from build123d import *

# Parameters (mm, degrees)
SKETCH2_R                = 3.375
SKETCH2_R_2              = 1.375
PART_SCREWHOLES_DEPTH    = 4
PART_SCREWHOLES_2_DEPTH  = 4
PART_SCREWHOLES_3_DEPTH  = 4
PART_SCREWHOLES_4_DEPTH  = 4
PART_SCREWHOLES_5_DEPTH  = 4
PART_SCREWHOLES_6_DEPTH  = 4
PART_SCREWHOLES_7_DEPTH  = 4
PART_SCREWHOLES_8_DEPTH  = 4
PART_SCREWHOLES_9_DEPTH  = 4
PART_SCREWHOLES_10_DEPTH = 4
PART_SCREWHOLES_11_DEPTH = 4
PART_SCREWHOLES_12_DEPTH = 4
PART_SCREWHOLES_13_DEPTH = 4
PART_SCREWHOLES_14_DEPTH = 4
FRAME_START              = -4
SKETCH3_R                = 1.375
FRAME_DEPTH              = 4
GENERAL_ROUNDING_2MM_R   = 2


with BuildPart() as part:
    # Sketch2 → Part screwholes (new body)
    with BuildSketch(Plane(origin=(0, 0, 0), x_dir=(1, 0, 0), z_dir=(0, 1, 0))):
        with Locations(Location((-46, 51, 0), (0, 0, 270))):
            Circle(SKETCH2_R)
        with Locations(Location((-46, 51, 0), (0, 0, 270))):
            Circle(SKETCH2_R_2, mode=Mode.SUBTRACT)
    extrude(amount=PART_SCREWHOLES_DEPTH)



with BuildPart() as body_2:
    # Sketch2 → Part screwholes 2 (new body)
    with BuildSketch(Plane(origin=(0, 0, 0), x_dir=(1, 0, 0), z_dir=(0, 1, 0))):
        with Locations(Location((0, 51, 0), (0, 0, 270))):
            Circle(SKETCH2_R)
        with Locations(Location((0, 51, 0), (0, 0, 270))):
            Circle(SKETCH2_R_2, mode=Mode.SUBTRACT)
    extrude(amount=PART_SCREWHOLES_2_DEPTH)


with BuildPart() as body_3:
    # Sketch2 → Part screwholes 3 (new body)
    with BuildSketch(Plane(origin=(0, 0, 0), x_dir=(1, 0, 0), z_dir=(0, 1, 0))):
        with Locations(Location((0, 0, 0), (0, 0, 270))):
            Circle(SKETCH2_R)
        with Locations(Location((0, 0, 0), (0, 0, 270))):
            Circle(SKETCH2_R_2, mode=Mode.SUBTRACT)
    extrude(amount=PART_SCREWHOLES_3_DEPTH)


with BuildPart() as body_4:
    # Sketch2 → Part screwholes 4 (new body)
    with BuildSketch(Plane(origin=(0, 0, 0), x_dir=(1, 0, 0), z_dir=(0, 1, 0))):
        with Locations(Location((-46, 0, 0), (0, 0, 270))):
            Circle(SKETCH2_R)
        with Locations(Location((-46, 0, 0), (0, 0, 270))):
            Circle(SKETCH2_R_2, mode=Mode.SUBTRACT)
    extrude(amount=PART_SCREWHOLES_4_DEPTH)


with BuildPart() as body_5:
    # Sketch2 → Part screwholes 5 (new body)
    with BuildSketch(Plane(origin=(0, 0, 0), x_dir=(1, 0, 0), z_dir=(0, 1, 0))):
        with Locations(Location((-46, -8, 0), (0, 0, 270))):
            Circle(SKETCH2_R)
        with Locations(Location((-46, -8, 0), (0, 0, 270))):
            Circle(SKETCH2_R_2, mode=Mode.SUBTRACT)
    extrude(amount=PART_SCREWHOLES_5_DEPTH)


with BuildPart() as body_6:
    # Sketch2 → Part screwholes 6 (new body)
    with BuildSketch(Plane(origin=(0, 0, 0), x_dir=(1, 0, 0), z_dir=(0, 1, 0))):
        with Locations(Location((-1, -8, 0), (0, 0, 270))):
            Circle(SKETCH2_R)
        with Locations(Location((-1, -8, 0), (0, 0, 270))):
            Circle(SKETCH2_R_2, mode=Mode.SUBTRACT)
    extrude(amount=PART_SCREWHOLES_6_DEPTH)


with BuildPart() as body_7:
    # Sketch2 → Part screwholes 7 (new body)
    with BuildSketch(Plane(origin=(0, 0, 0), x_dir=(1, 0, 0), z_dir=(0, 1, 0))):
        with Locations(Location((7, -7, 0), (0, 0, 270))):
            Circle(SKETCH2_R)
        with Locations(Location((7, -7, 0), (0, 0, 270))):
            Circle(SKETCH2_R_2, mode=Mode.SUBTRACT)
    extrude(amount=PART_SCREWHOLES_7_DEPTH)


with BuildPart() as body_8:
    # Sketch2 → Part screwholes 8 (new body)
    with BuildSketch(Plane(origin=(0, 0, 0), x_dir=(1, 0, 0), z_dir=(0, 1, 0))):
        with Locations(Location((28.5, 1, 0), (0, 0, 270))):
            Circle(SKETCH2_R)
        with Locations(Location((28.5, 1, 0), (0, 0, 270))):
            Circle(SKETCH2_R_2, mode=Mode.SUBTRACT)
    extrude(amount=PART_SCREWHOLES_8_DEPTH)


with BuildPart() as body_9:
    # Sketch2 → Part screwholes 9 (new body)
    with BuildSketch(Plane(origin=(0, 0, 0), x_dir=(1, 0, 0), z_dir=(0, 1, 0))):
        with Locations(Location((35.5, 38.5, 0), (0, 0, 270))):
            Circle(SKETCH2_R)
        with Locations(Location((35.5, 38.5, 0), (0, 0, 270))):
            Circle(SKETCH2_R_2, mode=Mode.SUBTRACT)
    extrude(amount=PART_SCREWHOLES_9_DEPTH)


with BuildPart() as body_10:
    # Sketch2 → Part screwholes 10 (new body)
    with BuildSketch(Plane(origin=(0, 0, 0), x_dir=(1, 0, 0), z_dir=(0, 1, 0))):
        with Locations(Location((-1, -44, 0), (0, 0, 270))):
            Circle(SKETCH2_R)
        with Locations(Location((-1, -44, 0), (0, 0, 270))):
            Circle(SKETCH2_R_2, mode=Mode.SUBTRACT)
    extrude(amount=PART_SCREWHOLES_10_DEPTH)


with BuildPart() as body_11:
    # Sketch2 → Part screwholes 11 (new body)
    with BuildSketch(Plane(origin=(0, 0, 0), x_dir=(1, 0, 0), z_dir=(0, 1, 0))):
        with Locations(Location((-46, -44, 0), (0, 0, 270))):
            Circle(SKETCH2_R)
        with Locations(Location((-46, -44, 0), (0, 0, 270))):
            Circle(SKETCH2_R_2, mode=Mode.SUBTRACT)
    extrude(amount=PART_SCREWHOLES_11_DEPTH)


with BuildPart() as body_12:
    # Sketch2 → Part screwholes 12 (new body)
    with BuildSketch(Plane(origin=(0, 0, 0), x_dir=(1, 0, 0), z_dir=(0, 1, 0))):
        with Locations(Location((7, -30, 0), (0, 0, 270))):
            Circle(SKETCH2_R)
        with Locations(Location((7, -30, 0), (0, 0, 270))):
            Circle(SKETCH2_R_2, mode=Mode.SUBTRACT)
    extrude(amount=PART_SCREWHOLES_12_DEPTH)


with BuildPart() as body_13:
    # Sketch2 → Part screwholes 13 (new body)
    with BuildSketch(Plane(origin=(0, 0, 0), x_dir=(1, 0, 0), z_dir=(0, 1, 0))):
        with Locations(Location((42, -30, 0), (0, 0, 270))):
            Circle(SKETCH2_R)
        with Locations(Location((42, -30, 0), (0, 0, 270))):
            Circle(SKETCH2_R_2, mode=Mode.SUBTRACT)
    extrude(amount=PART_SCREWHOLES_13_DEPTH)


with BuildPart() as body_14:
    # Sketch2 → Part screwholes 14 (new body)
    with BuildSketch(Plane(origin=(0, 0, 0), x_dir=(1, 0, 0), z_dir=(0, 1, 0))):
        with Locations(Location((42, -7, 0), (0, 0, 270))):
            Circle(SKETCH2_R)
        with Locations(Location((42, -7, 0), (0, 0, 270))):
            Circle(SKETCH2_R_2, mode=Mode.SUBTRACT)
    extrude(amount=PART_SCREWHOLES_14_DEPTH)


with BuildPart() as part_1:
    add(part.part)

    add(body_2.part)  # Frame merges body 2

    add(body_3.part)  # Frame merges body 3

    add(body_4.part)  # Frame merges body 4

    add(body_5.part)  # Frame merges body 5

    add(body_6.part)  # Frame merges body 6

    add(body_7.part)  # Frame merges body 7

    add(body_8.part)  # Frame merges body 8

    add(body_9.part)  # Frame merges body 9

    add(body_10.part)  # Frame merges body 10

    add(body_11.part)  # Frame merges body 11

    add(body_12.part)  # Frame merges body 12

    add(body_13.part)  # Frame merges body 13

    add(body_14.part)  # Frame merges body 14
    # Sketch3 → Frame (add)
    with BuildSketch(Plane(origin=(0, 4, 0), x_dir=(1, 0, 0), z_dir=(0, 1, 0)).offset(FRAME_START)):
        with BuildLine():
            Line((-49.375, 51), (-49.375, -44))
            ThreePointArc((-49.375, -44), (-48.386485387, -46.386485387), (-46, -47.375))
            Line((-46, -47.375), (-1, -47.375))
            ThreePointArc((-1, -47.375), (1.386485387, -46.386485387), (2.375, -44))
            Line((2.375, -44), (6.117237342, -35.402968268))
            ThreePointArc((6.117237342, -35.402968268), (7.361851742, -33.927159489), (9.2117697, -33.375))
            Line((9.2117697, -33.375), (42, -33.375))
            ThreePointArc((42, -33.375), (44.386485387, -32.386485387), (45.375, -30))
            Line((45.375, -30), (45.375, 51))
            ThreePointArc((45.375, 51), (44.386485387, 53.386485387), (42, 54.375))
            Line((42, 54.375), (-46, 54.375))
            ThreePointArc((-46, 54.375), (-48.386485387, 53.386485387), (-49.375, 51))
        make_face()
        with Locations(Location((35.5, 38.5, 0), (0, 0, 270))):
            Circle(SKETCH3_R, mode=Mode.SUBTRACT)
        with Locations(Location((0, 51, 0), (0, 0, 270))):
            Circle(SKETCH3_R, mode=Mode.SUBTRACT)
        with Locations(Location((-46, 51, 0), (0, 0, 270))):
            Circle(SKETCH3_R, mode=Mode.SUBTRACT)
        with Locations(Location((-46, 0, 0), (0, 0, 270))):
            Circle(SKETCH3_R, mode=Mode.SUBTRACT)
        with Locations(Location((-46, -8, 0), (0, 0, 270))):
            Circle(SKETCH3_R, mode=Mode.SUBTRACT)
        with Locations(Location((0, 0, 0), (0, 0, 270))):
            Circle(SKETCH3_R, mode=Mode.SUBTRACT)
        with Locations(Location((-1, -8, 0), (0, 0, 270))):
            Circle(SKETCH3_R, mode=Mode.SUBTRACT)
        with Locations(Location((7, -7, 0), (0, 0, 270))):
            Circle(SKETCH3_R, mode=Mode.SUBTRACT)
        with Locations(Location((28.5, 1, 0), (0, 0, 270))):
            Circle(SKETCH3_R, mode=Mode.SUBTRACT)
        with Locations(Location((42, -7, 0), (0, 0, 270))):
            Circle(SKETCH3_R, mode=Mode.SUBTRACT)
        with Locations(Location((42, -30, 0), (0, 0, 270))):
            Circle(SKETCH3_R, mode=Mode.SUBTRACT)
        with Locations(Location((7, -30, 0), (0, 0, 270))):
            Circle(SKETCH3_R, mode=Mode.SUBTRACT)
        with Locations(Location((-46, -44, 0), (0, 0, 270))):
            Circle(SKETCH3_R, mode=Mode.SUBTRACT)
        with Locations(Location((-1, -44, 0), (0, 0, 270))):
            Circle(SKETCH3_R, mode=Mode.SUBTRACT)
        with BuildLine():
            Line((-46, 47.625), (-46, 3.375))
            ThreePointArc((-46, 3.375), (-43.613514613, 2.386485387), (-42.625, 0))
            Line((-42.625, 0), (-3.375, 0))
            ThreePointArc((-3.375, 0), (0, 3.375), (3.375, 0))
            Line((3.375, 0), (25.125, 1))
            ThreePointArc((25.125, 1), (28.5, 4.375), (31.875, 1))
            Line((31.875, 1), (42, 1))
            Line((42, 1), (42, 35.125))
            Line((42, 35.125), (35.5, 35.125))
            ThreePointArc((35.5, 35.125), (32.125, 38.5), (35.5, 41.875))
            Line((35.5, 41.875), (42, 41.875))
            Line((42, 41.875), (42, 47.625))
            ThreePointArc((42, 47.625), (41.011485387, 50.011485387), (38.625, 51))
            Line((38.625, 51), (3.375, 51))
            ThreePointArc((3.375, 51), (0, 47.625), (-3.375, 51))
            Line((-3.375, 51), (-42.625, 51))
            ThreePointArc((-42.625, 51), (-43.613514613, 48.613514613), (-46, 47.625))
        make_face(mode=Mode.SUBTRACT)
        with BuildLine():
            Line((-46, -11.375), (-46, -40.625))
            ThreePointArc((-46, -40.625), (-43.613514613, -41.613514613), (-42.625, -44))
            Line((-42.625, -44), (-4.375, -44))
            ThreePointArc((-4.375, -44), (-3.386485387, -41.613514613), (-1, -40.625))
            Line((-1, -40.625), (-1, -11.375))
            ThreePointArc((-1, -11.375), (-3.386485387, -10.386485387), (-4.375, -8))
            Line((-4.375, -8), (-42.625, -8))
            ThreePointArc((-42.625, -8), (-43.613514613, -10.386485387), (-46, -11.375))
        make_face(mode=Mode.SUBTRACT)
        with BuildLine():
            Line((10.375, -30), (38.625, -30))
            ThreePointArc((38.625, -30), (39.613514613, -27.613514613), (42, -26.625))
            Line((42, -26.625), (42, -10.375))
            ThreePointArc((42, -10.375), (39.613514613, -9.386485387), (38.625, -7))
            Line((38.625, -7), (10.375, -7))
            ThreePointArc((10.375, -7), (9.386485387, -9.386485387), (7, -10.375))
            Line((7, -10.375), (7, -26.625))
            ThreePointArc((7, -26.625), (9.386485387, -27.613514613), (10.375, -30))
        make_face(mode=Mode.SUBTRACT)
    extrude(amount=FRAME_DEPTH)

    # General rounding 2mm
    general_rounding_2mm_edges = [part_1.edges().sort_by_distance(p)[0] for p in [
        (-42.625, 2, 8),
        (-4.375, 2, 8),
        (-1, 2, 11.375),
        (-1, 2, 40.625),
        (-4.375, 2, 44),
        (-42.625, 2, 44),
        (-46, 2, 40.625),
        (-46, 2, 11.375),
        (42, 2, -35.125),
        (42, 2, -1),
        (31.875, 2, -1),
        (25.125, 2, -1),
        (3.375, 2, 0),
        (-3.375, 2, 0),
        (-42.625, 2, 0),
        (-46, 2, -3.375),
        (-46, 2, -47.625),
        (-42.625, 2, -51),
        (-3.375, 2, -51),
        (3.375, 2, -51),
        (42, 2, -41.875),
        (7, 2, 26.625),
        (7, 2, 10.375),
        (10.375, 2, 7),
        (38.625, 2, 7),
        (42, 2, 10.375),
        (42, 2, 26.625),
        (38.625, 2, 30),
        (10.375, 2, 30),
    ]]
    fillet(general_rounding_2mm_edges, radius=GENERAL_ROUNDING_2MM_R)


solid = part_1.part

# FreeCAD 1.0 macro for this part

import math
import FreeCAD as App
import Part
import Sketcher


def edges_at(feature, points):
    """Names of the edges that pass closest to the given points."""
    edges = feature.Shape.Edges
    near = lambda p: min(range(len(edges)), key=lambda i: edges[i].distToShape(Part.Vertex(*p))[0])
    return sorted({f"Edge{near(p) + 1}" for p in points})

doc = App.newDocument("Part")
body = doc.addObject("PartDesign::Body", "Body")

# Sketch on XZ plane
sketch1 = doc.addObject("Sketcher::SketchObject", "Sketch")
body.addObject(sketch1)
sketch1.AttachmentSupport = (doc.XZ_Plane, [""])
sketch1.MapMode = "FlatFace"
sketch1.addGeometry([
    Part.Circle(App.Vector(-46, -51, 0), App.Vector(0, 0, 1), 3.375),
    Part.Circle(App.Vector(-46, -51, 0), App.Vector(0, 0, 1), 1.375),
], False)
sketch1.addConstraint([
    Sketcher.Constraint("Coincident", 1, 3, 0, 3),
    Sketcher.Constraint("Diameter", 0, 6.75),
    Sketcher.Constraint("Diameter", 1, 2.75),
    Sketcher.Constraint("DistanceX", 0, 3, -1, 1, 46.0),
    Sketcher.Constraint("DistanceY", 0, 3, -1, 1, 51.0),
])
pad1 = doc.addObject("PartDesign::Pad", "Pad")
body.addObject(pad1)
pad1.Profile = sketch1
pad1.Length = 4
pad1.Reversed = True
body2 = doc.addObject("PartDesign::Body", "Body001")

# Sketch on XZ plane
sketch2 = doc.addObject("Sketcher::SketchObject", "Sketch001")
body2.addObject(sketch2)
sketch2.AttachmentSupport = (doc.getObject("XZ_Plane001"), [""])
sketch2.MapMode = "FlatFace"
sketch2.addGeometry([
    Part.Circle(App.Vector(0, -51, 0), App.Vector(0, 0, 1), 3.375),
    Part.Circle(App.Vector(0, -51, 0), App.Vector(0, 0, 1), 1.375),
], False)
sketch2.addConstraint([
    Sketcher.Constraint("Coincident", 1, 3, 0, 3),
    Sketcher.Constraint("PointOnObject", 0, 3, -2),
    Sketcher.Constraint("Diameter", 0, 6.75),
    Sketcher.Constraint("Diameter", 1, 2.75),
    Sketcher.Constraint("DistanceY", 0, 3, -1, 1, 51.0),
])
pad2 = doc.addObject("PartDesign::Pad", "Pad001")
body2.addObject(pad2)
pad2.Profile = sketch2
pad2.Length = 4
pad2.Reversed = True
body3 = doc.addObject("PartDesign::Body", "Body002")

# Sketch on XZ plane
sketch3 = doc.addObject("Sketcher::SketchObject", "Sketch002")
body3.addObject(sketch3)
sketch3.AttachmentSupport = (doc.getObject("XZ_Plane002"), [""])
sketch3.MapMode = "FlatFace"
sketch3.addGeometry([
    Part.Circle(App.Vector(0, 0, 0), App.Vector(0, 0, 1), 3.375),
    Part.Circle(App.Vector(0, 0, 0), App.Vector(0, 0, 1), 1.375),
], False)
sketch3.addConstraint([
    Sketcher.Constraint("Coincident", 0, 3, -1, 1),
    Sketcher.Constraint("Coincident", 1, 3, -1, 1),
    Sketcher.Constraint("Diameter", 0, 6.75),
    Sketcher.Constraint("Diameter", 1, 2.75),
])
pad3 = doc.addObject("PartDesign::Pad", "Pad002")
body3.addObject(pad3)
pad3.Profile = sketch3
pad3.Length = 4
pad3.Reversed = True
body4 = doc.addObject("PartDesign::Body", "Body003")

# Sketch on XZ plane
sketch4 = doc.addObject("Sketcher::SketchObject", "Sketch003")
body4.addObject(sketch4)
sketch4.AttachmentSupport = (doc.getObject("XZ_Plane003"), [""])
sketch4.MapMode = "FlatFace"
sketch4.addGeometry([
    Part.Circle(App.Vector(-46, 0, 0), App.Vector(0, 0, 1), 3.375),
    Part.Circle(App.Vector(-46, 0, 0), App.Vector(0, 0, 1), 1.375),
], False)
sketch4.addConstraint([
    Sketcher.Constraint("Coincident", 1, 3, 0, 3),
    Sketcher.Constraint("PointOnObject", 0, 3, -1),
    Sketcher.Constraint("Diameter", 0, 6.75),
    Sketcher.Constraint("Diameter", 1, 2.75),
    Sketcher.Constraint("DistanceX", 0, 3, -1, 1, 46.0),
])
pad4 = doc.addObject("PartDesign::Pad", "Pad003")
body4.addObject(pad4)
pad4.Profile = sketch4
pad4.Length = 4
pad4.Reversed = True
body5 = doc.addObject("PartDesign::Body", "Body004")

# Sketch on XZ plane
sketch5 = doc.addObject("Sketcher::SketchObject", "Sketch004")
body5.addObject(sketch5)
sketch5.AttachmentSupport = (doc.getObject("XZ_Plane004"), [""])
sketch5.MapMode = "FlatFace"
sketch5.addGeometry([
    Part.Circle(App.Vector(-46, 8, 0), App.Vector(0, 0, 1), 3.375),
    Part.Circle(App.Vector(-46, 8, 0), App.Vector(0, 0, 1), 1.375),
], False)
sketch5.addConstraint([
    Sketcher.Constraint("Coincident", 1, 3, 0, 3),
    Sketcher.Constraint("Diameter", 0, 6.75),
    Sketcher.Constraint("Diameter", 1, 2.75),
    Sketcher.Constraint("DistanceX", 0, 3, -1, 1, 46.0),
    Sketcher.Constraint("DistanceY", -1, 1, 0, 3, 8.0),
])
pad5 = doc.addObject("PartDesign::Pad", "Pad004")
body5.addObject(pad5)
pad5.Profile = sketch5
pad5.Length = 4
pad5.Reversed = True
body6 = doc.addObject("PartDesign::Body", "Body005")

# Sketch on XZ plane
sketch6 = doc.addObject("Sketcher::SketchObject", "Sketch005")
body6.addObject(sketch6)
sketch6.AttachmentSupport = (doc.getObject("XZ_Plane005"), [""])
sketch6.MapMode = "FlatFace"
sketch6.addGeometry([
    Part.Circle(App.Vector(-1, 8, 0), App.Vector(0, 0, 1), 3.375),
    Part.Circle(App.Vector(-1, 8, 0), App.Vector(0, 0, 1), 1.375),
], False)
sketch6.addConstraint([
    Sketcher.Constraint("Coincident", 1, 3, 0, 3),
    Sketcher.Constraint("Diameter", 0, 6.75),
    Sketcher.Constraint("Diameter", 1, 2.75),
    Sketcher.Constraint("DistanceX", 0, 3, -1, 1, 1.0),
    Sketcher.Constraint("DistanceY", -1, 1, 0, 3, 8.0),
])
pad6 = doc.addObject("PartDesign::Pad", "Pad005")
body6.addObject(pad6)
pad6.Profile = sketch6
pad6.Length = 4
pad6.Reversed = True
body7 = doc.addObject("PartDesign::Body", "Body006")

# Sketch on XZ plane
sketch7 = doc.addObject("Sketcher::SketchObject", "Sketch006")
body7.addObject(sketch7)
sketch7.AttachmentSupport = (doc.getObject("XZ_Plane006"), [""])
sketch7.MapMode = "FlatFace"
sketch7.addGeometry([
    Part.Circle(App.Vector(7, 7, 0), App.Vector(0, 0, 1), 3.375),
    Part.Circle(App.Vector(7, 7, 0), App.Vector(0, 0, 1), 1.375),
], False)
sketch7.addConstraint([
    Sketcher.Constraint("Coincident", 1, 3, 0, 3),
    Sketcher.Constraint("Diameter", 0, 6.75),
    Sketcher.Constraint("Diameter", 1, 2.75),
    Sketcher.Constraint("DistanceX", -1, 1, 0, 3, 7.0),
    Sketcher.Constraint("DistanceY", -1, 1, 0, 3, 7.0),
])
pad7 = doc.addObject("PartDesign::Pad", "Pad006")
body7.addObject(pad7)
pad7.Profile = sketch7
pad7.Length = 4
pad7.Reversed = True
body8 = doc.addObject("PartDesign::Body", "Body007")

# Sketch on XZ plane
sketch8 = doc.addObject("Sketcher::SketchObject", "Sketch007")
body8.addObject(sketch8)
sketch8.AttachmentSupport = (doc.getObject("XZ_Plane007"), [""])
sketch8.MapMode = "FlatFace"
sketch8.addGeometry([
    Part.Circle(App.Vector(28.5, -1, 0), App.Vector(0, 0, 1), 3.375),
    Part.Circle(App.Vector(28.5, -1, 0), App.Vector(0, 0, 1), 1.375),
], False)
sketch8.addConstraint([
    Sketcher.Constraint("Coincident", 1, 3, 0, 3),
    Sketcher.Constraint("Diameter", 0, 6.75),
    Sketcher.Constraint("Diameter", 1, 2.75),
    Sketcher.Constraint("DistanceY", 0, 3, -1, 1, 1.0),
    Sketcher.Constraint("DistanceX", -1, 1, 0, 3, 28.5),
])
pad8 = doc.addObject("PartDesign::Pad", "Pad007")
body8.addObject(pad8)
pad8.Profile = sketch8
pad8.Length = 4
pad8.Reversed = True
body9 = doc.addObject("PartDesign::Body", "Body008")

# Sketch on XZ plane
sketch9 = doc.addObject("Sketcher::SketchObject", "Sketch008")
body9.addObject(sketch9)
sketch9.AttachmentSupport = (doc.getObject("XZ_Plane008"), [""])
sketch9.MapMode = "FlatFace"
sketch9.addGeometry([
    Part.Circle(App.Vector(35.5, -38.5, 0), App.Vector(0, 0, 1), 3.375),
    Part.Circle(App.Vector(35.5, -38.5, 0), App.Vector(0, 0, 1), 1.375),
], False)
sketch9.addConstraint([
    Sketcher.Constraint("Coincident", 1, 3, 0, 3),
    Sketcher.Constraint("Diameter", 0, 6.75),
    Sketcher.Constraint("Diameter", 1, 2.75),
    Sketcher.Constraint("DistanceX", -1, 1, 0, 3, 35.5),
    Sketcher.Constraint("DistanceY", 0, 3, -1, 1, 38.5),
])
pad9 = doc.addObject("PartDesign::Pad", "Pad008")
body9.addObject(pad9)
pad9.Profile = sketch9
pad9.Length = 4
pad9.Reversed = True
body10 = doc.addObject("PartDesign::Body", "Body009")

# Sketch on XZ plane
sketch10 = doc.addObject("Sketcher::SketchObject", "Sketch009")
body10.addObject(sketch10)
sketch10.AttachmentSupport = (doc.getObject("XZ_Plane009"), [""])
sketch10.MapMode = "FlatFace"
sketch10.addGeometry([
    Part.Circle(App.Vector(-1, 44, 0), App.Vector(0, 0, 1), 3.375),
    Part.Circle(App.Vector(-1, 44, 0), App.Vector(0, 0, 1), 1.375),
], False)
sketch10.addConstraint([
    Sketcher.Constraint("Coincident", 1, 3, 0, 3),
    Sketcher.Constraint("Diameter", 0, 6.75),
    Sketcher.Constraint("Diameter", 1, 2.75),
    Sketcher.Constraint("DistanceX", 0, 3, -1, 1, 1.0),
    Sketcher.Constraint("DistanceY", -1, 1, 0, 3, 44.0),
])
pad10 = doc.addObject("PartDesign::Pad", "Pad009")
body10.addObject(pad10)
pad10.Profile = sketch10
pad10.Length = 4
pad10.Reversed = True
body11 = doc.addObject("PartDesign::Body", "Body010")

# Sketch on XZ plane
sketch11 = doc.addObject("Sketcher::SketchObject", "Sketch010")
body11.addObject(sketch11)
sketch11.AttachmentSupport = (doc.getObject("XZ_Plane010"), [""])
sketch11.MapMode = "FlatFace"
sketch11.addGeometry([
    Part.Circle(App.Vector(-46, 44, 0), App.Vector(0, 0, 1), 3.375),
    Part.Circle(App.Vector(-46, 44, 0), App.Vector(0, 0, 1), 1.375),
], False)
sketch11.addConstraint([
    Sketcher.Constraint("Coincident", 1, 3, 0, 3),
    Sketcher.Constraint("Diameter", 0, 6.75),
    Sketcher.Constraint("Diameter", 1, 2.75),
    Sketcher.Constraint("DistanceX", 0, 3, -1, 1, 46.0),
    Sketcher.Constraint("DistanceY", -1, 1, 0, 3, 44.0),
])
pad11 = doc.addObject("PartDesign::Pad", "Pad010")
body11.addObject(pad11)
pad11.Profile = sketch11
pad11.Length = 4
pad11.Reversed = True
body12 = doc.addObject("PartDesign::Body", "Body011")

# Sketch on XZ plane
sketch12 = doc.addObject("Sketcher::SketchObject", "Sketch011")
body12.addObject(sketch12)
sketch12.AttachmentSupport = (doc.getObject("XZ_Plane011"), [""])
sketch12.MapMode = "FlatFace"
sketch12.addGeometry([
    Part.Circle(App.Vector(7, 30, 0), App.Vector(0, 0, 1), 3.375),
    Part.Circle(App.Vector(7, 30, 0), App.Vector(0, 0, 1), 1.375),
], False)
sketch12.addConstraint([
    Sketcher.Constraint("Coincident", 1, 3, 0, 3),
    Sketcher.Constraint("Diameter", 0, 6.75),
    Sketcher.Constraint("Diameter", 1, 2.75),
    Sketcher.Constraint("DistanceX", -1, 1, 0, 3, 7.0),
    Sketcher.Constraint("DistanceY", -1, 1, 0, 3, 30.0),
])
pad12 = doc.addObject("PartDesign::Pad", "Pad011")
body12.addObject(pad12)
pad12.Profile = sketch12
pad12.Length = 4
pad12.Reversed = True
body13 = doc.addObject("PartDesign::Body", "Body012")

# Sketch on XZ plane
sketch13 = doc.addObject("Sketcher::SketchObject", "Sketch012")
body13.addObject(sketch13)
sketch13.AttachmentSupport = (doc.getObject("XZ_Plane012"), [""])
sketch13.MapMode = "FlatFace"
sketch13.addGeometry([
    Part.Circle(App.Vector(42, 30, 0), App.Vector(0, 0, 1), 3.375),
    Part.Circle(App.Vector(42, 30, 0), App.Vector(0, 0, 1), 1.375),
], False)
sketch13.addConstraint([
    Sketcher.Constraint("Coincident", 1, 3, 0, 3),
    Sketcher.Constraint("Diameter", 0, 6.75),
    Sketcher.Constraint("Diameter", 1, 2.75),
    Sketcher.Constraint("DistanceX", -1, 1, 0, 3, 42.0),
    Sketcher.Constraint("DistanceY", -1, 1, 0, 3, 30.0),
])
pad13 = doc.addObject("PartDesign::Pad", "Pad012")
body13.addObject(pad13)
pad13.Profile = sketch13
pad13.Length = 4
pad13.Reversed = True
body14 = doc.addObject("PartDesign::Body", "Body013")

# Sketch on XZ plane
sketch14 = doc.addObject("Sketcher::SketchObject", "Sketch013")
body14.addObject(sketch14)
sketch14.AttachmentSupport = (doc.getObject("XZ_Plane013"), [""])
sketch14.MapMode = "FlatFace"
sketch14.addGeometry([
    Part.Circle(App.Vector(42, 7, 0), App.Vector(0, 0, 1), 3.375),
    Part.Circle(App.Vector(42, 7, 0), App.Vector(0, 0, 1), 1.375),
], False)
sketch14.addConstraint([
    Sketcher.Constraint("Coincident", 1, 3, 0, 3),
    Sketcher.Constraint("Diameter", 0, 6.75),
    Sketcher.Constraint("Diameter", 1, 2.75),
    Sketcher.Constraint("DistanceX", -1, 1, 0, 3, 42.0),
    Sketcher.Constraint("DistanceY", -1, 1, 0, 3, 7.0),
])
pad14 = doc.addObject("PartDesign::Pad", "Pad013")
body14.addObject(pad14)
pad14.Profile = sketch14
pad14.Length = 4
pad14.Reversed = True
body.AllowCompound = True
doc.recompute()

boolean = doc.addObject("PartDesign::Boolean", "Boolean")
body.addObject(boolean)
boolean.Type = "Fuse"
boolean.addObjects([body2])
doc.recompute()

boolean2 = doc.addObject("PartDesign::Boolean", "Boolean001")
body.addObject(boolean2)
boolean2.Type = "Fuse"
boolean2.addObjects([body3])
doc.recompute()

boolean3 = doc.addObject("PartDesign::Boolean", "Boolean002")
body.addObject(boolean3)
boolean3.Type = "Fuse"
boolean3.addObjects([body4])
doc.recompute()

boolean4 = doc.addObject("PartDesign::Boolean", "Boolean003")
body.addObject(boolean4)
boolean4.Type = "Fuse"
boolean4.addObjects([body5])
doc.recompute()

boolean5 = doc.addObject("PartDesign::Boolean", "Boolean004")
body.addObject(boolean5)
boolean5.Type = "Fuse"
boolean5.addObjects([body6])
doc.recompute()

boolean6 = doc.addObject("PartDesign::Boolean", "Boolean005")
body.addObject(boolean6)
boolean6.Type = "Fuse"
boolean6.addObjects([body7])
doc.recompute()

boolean7 = doc.addObject("PartDesign::Boolean", "Boolean006")
body.addObject(boolean7)
boolean7.Type = "Fuse"
boolean7.addObjects([body8])
doc.recompute()

boolean8 = doc.addObject("PartDesign::Boolean", "Boolean007")
body.addObject(boolean8)
boolean8.Type = "Fuse"
boolean8.addObjects([body9])
doc.recompute()

boolean9 = doc.addObject("PartDesign::Boolean", "Boolean008")
body.addObject(boolean9)
boolean9.Type = "Fuse"
boolean9.addObjects([body10])
doc.recompute()

boolean10 = doc.addObject("PartDesign::Boolean", "Boolean009")
body.addObject(boolean10)
boolean10.Type = "Fuse"
boolean10.addObjects([body11])
doc.recompute()

boolean11 = doc.addObject("PartDesign::Boolean", "Boolean010")
body.addObject(boolean11)
boolean11.Type = "Fuse"
boolean11.addObjects([body12])
doc.recompute()

boolean12 = doc.addObject("PartDesign::Boolean", "Boolean011")
body.addObject(boolean12)
boolean12.Type = "Fuse"
boolean12.addObjects([body13])
doc.recompute()

boolean13 = doc.addObject("PartDesign::Boolean", "Boolean012")
body.addObject(boolean13)
boolean13.Type = "Fuse"
boolean13.addObjects([body14])

# Sketch on XZ plane
sketch15 = doc.addObject("Sketcher::SketchObject", "Sketch014")
body.addObject(sketch15)
sketch15.AttachmentSupport = (doc.XZ_Plane, [""])
sketch15.MapMode = "FlatFace"
sketch15.addGeometry([
    Part.LineSegment(App.Vector(-49.375, -51, 0), App.Vector(-49.375, 44, 0)),  # 0
    Part.ArcOfCircle(Part.Circle(App.Vector(-46, 44, 0), App.Vector(0, 0, 1), 3.375), math.radians(90), math.radians(180)),  # 1
    Part.LineSegment(App.Vector(-46, 47.375, 0), App.Vector(-1, 47.375, 0)),  # 2
    Part.ArcOfCircle(Part.Circle(App.Vector(-1, 44, 0), App.Vector(0, 0, 1), 3.375), math.radians(0), math.radians(90)),  # 3
    Part.LineSegment(App.Vector(2.375, 44, 0), App.Vector(6.117237, 35.402968, 0)),  # 4
    Part.ArcOfCircle(Part.Circle(App.Vector(9.21177, 36.75, 0), App.Vector(0, 0, 1), 3.375), math.radians(-156.476791), math.radians(-90)),  # 5
    Part.LineSegment(App.Vector(9.21177, 33.375, 0), App.Vector(42, 33.375, 0)),  # 6
    Part.ArcOfCircle(Part.Circle(App.Vector(42, 30, 0), App.Vector(0, 0, 1), 3.375), math.radians(0), math.radians(90)),  # 7
    Part.LineSegment(App.Vector(45.375, 30, 0), App.Vector(45.375, -51, 0)),  # 8
    Part.ArcOfCircle(Part.Circle(App.Vector(42, -51, 0), App.Vector(0, 0, 1), 3.375), math.radians(-90), math.radians(0)),  # 9
    Part.LineSegment(App.Vector(42, -54.375, 0), App.Vector(-46, -54.375, 0)),  # 10
    Part.ArcOfCircle(Part.Circle(App.Vector(-46, -51, 0), App.Vector(0, 0, 1), 3.375), math.radians(180), math.radians(270)),  # 11
    Part.Circle(App.Vector(-46, 44, 0), App.Vector(0, 0, 1), 1.375),  # 12
    Part.LineSegment(App.Vector(-46, 40.625, 0), App.Vector(-46, 11.375, 0)),  # 13
    Part.ArcOfCircle(Part.Circle(App.Vector(-46, 8, 0), App.Vector(0, 0, 1), 3.375), math.radians(0), math.radians(90)),  # 14
    Part.LineSegment(App.Vector(-42.625, 8, 0), App.Vector(-4.375, 8, 0)),  # 15
    Part.ArcOfCircle(Part.Circle(App.Vector(-1, 8, 0), App.Vector(0, 0, 1), 3.375), math.radians(90), math.radians(180)),  # 16
    Part.LineSegment(App.Vector(-1, 11.375, 0), App.Vector(-1, 40.625, 0)),  # 17
    Part.ArcOfCircle(Part.Circle(App.Vector(-1, 44, 0), App.Vector(0, 0, 1), 3.375), math.radians(180), math.radians(270)),  # 18
    Part.LineSegment(App.Vector(-4.375, 44, 0), App.Vector(-42.625, 44, 0)),  # 19
    Part.ArcOfCircle(Part.Circle(App.Vector(-46, 44, 0), App.Vector(0, 0, 1), 3.375), math.radians(-90), math.radians(0)),  # 20
    Part.Circle(App.Vector(-46, 8, 0), App.Vector(0, 0, 1), 1.375),  # 21
    Part.Circle(App.Vector(-46, 0, 0), App.Vector(0, 0, 1), 1.375),  # 22
    Part.Circle(App.Vector(-1, 44, 0), App.Vector(0, 0, 1), 1.375),  # 23
    Part.Circle(App.Vector(7, 30, 0), App.Vector(0, 0, 1), 1.375),  # 24
    Part.Circle(App.Vector(42, 30, 0), App.Vector(0, 0, 1), 1.375),  # 25
    Part.Circle(App.Vector(-1, 8, 0), App.Vector(0, 0, 1), 1.375),  # 26
    Part.Circle(App.Vector(7, 7, 0), App.Vector(0, 0, 1), 1.375),  # 27
    Part.Circle(App.Vector(0, 0, 0), App.Vector(0, 0, 1), 1.375),  # 28
    Part.LineSegment(App.Vector(38.625, 30, 0), App.Vector(10.375, 30, 0)),  # 29
    Part.ArcOfCircle(Part.Circle(App.Vector(7, 30, 0), App.Vector(0, 0, 1), 3.375), math.radians(-90), math.radians(0)),  # 30
    Part.LineSegment(App.Vector(7, 26.625, 0), App.Vector(7, 10.375, 0)),  # 31
    Part.ArcOfCircle(Part.Circle(App.Vector(7, 7, 0), App.Vector(0, 0, 1), 3.375), math.radians(0), math.radians(90)),  # 32
    Part.LineSegment(App.Vector(10.375, 7, 0), App.Vector(38.625, 7, 0)),  # 33
    Part.ArcOfCircle(Part.Circle(App.Vector(42, 7, 0), App.Vector(0, 0, 1), 3.375), math.radians(90), math.radians(180)),  # 34
    Part.LineSegment(App.Vector(42, 10.375, 0), App.Vector(42, 26.625, 0)),  # 35
    Part.ArcOfCircle(Part.Circle(App.Vector(42, 30, 0), App.Vector(0, 0, 1), 3.375), math.radians(180), math.radians(270)),  # 36
    Part.Circle(App.Vector(28.5, -1, 0), App.Vector(0, 0, 1), 1.375),  # 37
    Part.Circle(App.Vector(42, 7, 0), App.Vector(0, 0, 1), 1.375),  # 38
    Part.Circle(App.Vector(-46, -51, 0), App.Vector(0, 0, 1), 1.375),  # 39
    Part.LineSegment(App.Vector(-46, -3.375, 0), App.Vector(-46, -47.625, 0)),  # 40
    Part.ArcOfCircle(Part.Circle(App.Vector(-46, -51, 0), App.Vector(0, 0, 1), 3.375), math.radians(0), math.radians(90)),  # 41
    Part.LineSegment(App.Vector(-42.625, -51, 0), App.Vector(-3.375, -51, 0)),  # 42
    Part.ArcOfCircle(Part.Circle(App.Vector(0, -51, 0), App.Vector(0, 0, 1), 3.375), math.radians(0), math.radians(180)),  # 43
    Part.LineSegment(App.Vector(3.375, -51, 0), App.Vector(38.625, -51, 0)),  # 44
    Part.ArcOfCircle(Part.Circle(App.Vector(38.625, -47.625, 0), App.Vector(0, 0, 1), 3.375), math.radians(-90), math.radians(0)),  # 45
    Part.LineSegment(App.Vector(42, -47.625, 0), App.Vector(42, -41.875, 0)),  # 46
    Part.LineSegment(App.Vector(42, -41.875, 0), App.Vector(35.5, -41.875, 0)),  # 47
    Part.ArcOfCircle(Part.Circle(App.Vector(35.5, -38.5, 0), App.Vector(0, 0, 1), 3.375), math.radians(90), math.radians(270)),  # 48
    Part.LineSegment(App.Vector(35.5, -35.125, 0), App.Vector(42, -35.125, 0)),  # 49
    Part.LineSegment(App.Vector(42, -35.125, 0), App.Vector(42, -1, 0)),  # 50
    Part.LineSegment(App.Vector(42, -1, 0), App.Vector(31.875, -1, 0)),  # 51
    Part.ArcOfCircle(Part.Circle(App.Vector(28.5, -1, 0), App.Vector(0, 0, 1), 3.375), math.radians(180), math.radians(360)),  # 52
    Part.LineSegment(App.Vector(25.125, -1, 0), App.Vector(3.375, 0, 0)),  # 53
    Part.ArcOfCircle(Part.Circle(App.Vector(0, 0, 0), App.Vector(0, 0, 1), 3.375), math.radians(180), math.radians(360)),  # 54
    Part.LineSegment(App.Vector(-3.375, 0, 0), App.Vector(-42.625, 0, 0)),  # 55
    Part.ArcOfCircle(Part.Circle(App.Vector(-46, 0, 0), App.Vector(0, 0, 1), 3.375), math.radians(-90), math.radians(0)),  # 56
    Part.Circle(App.Vector(0, -51, 0), App.Vector(0, 0, 1), 1.375),  # 57
    Part.Circle(App.Vector(35.5, -38.5, 0), App.Vector(0, 0, 1), 1.375),  # 58
], False)
sketch15.addConstraint([
    Sketcher.Constraint("Tangent", 0, 2, 1, 2),
    Sketcher.Constraint("Tangent", 1, 1, 2, 1),
    Sketcher.Constraint("Tangent", 2, 2, 3, 2),
    Sketcher.Constraint("Coincident", 3, 1, 4, 1),
    Sketcher.Constraint("Tangent", 4, 2, 5, 1),
    Sketcher.Constraint("Tangent", 5, 2, 6, 1),
    Sketcher.Constraint("Tangent", 6, 2, 7, 2),
    Sketcher.Constraint("Tangent", 7, 1, 8, 1),
    Sketcher.Constraint("Tangent", 8, 2, 9, 2),
    Sketcher.Constraint("Tangent", 9, 1, 10, 1),
    Sketcher.Constraint("Tangent", 10, 2, 11, 2),
    Sketcher.Constraint("Tangent", 11, 1, 0, 1),
    Sketcher.Constraint("Coincident", 13, 2, 14, 2),
    Sketcher.Constraint("Coincident", 14, 1, 15, 1),
    Sketcher.Constraint("Coincident", 15, 2, 16, 2),
    Sketcher.Constraint("Coincident", 16, 1, 17, 1),
    Sketcher.Constraint("Coincident", 17, 2, 18, 2),
    Sketcher.Constraint("Coincident", 18, 1, 19, 1),
    Sketcher.Constraint("Coincident", 19, 2, 20, 2),
    Sketcher.Constraint("Coincident", 20, 1, 13, 1),
    Sketcher.Constraint("Coincident", 29, 2, 30, 2),
    Sketcher.Constraint("Coincident", 30, 1, 31, 1),
    Sketcher.Constraint("Coincident", 31, 2, 32, 2),
    Sketcher.Constraint("Coincident", 32, 1, 33, 1),
    Sketcher.Constraint("Coincident", 33, 2, 34, 2),
    Sketcher.Constraint("Coincident", 34, 1, 35, 1),
    Sketcher.Constraint("Coincident", 35, 2, 36, 2),
    Sketcher.Constraint("Coincident", 36, 1, 29, 1),
    Sketcher.Constraint("Coincident", 40, 2, 41, 2),
    Sketcher.Constraint("Coincident", 41, 1, 42, 1),
    Sketcher.Constraint("Coincident", 42, 2, 43, 2),
    Sketcher.Constraint("Coincident", 43, 1, 44, 1),
    Sketcher.Constraint("Tangent", 44, 2, 45, 1),
    Sketcher.Constraint("Tangent", 45, 2, 46, 1),
    Sketcher.Constraint("Coincident", 46, 2, 47, 1),
    Sketcher.Constraint("Tangent", 47, 2, 48, 2),
    Sketcher.Constraint("Tangent", 48, 1, 49, 1),
    Sketcher.Constraint("Coincident", 49, 2, 50, 1),
    Sketcher.Constraint("Coincident", 50, 2, 51, 1),
    Sketcher.Constraint("Coincident", 51, 2, 52, 2),
    Sketcher.Constraint("Coincident", 52, 1, 53, 1),
    Sketcher.Constraint("Coincident", 53, 2, 54, 2),
    Sketcher.Constraint("Coincident", 54, 1, 55, 1),
    Sketcher.Constraint("Coincident", 55, 2, 56, 2),
    Sketcher.Constraint("Coincident", 56, 1, 40, 1),
    Sketcher.Constraint("Vertical", 0),
    Sketcher.Constraint("Horizontal", 2),
    Sketcher.Constraint("Horizontal", 6),
    Sketcher.Constraint("Vertical", 8),
    Sketcher.Constraint("Horizontal", 10),
    Sketcher.Constraint("Vertical", 13),
    Sketcher.Constraint("Horizontal", 15),
    Sketcher.Constraint("Vertical", 17),
    Sketcher.Constraint("Horizontal", 19),
    Sketcher.Constraint("Horizontal", 29),
    Sketcher.Constraint("Vertical", 31),
    Sketcher.Constraint("Horizontal", 33),
    Sketcher.Constraint("Vertical", 35),
    Sketcher.Constraint("Vertical", 40),
    Sketcher.Constraint("Horizontal", 42),
    Sketcher.Constraint("Horizontal", 44),
    Sketcher.Constraint("Vertical", 46),
    Sketcher.Constraint("Horizontal", 47),
    Sketcher.Constraint("Horizontal", 49),
    Sketcher.Constraint("Vertical", 50),
    Sketcher.Constraint("Horizontal", 51),
    Sketcher.Constraint("Horizontal", 55),
    Sketcher.Constraint("Coincident", 28, 3, -1, 1),
    Sketcher.Constraint("Coincident", 54, 3, -1, 1),
    Sketcher.Constraint("Coincident", 12, 3, 1, 3),
    Sketcher.Constraint("Coincident", 18, 3, 3, 3),
    Sketcher.Constraint("Coincident", 20, 3, 1, 3),
    Sketcher.Constraint("Coincident", 21, 3, 14, 3),
    Sketcher.Constraint("Coincident", 23, 3, 3, 3),
    Sketcher.Constraint("Coincident", 25, 3, 7, 3),
    Sketcher.Constraint("Coincident", 26, 3, 16, 3),
    Sketcher.Constraint("Coincident", 30, 3, 24, 3),
    Sketcher.Constraint("Coincident", 32, 3, 27, 3),
    Sketcher.Constraint("Coincident", 36, 3, 7, 3),
    Sketcher.Constraint("Coincident", 38, 3, 34, 3),
    Sketcher.Constraint("Coincident", 39, 3, 11, 3),
    Sketcher.Constraint("Coincident", 41, 3, 11, 3),
    Sketcher.Constraint("Coincident", 52, 3, 37, 3),
    Sketcher.Constraint("Coincident", 56, 3, 22, 3),
    Sketcher.Constraint("Coincident", 57, 3, 43, 3),
    Sketcher.Constraint("Coincident", 58, 3, 48, 3),
    Sketcher.Constraint("Equal", 1, 3),
    Sketcher.Constraint("Equal", 3, 5),
    Sketcher.Constraint("Equal", 5, 7),
    Sketcher.Constraint("Equal", 7, 9),
    Sketcher.Constraint("Equal", 9, 11),
    Sketcher.Constraint("Equal", 11, 14),
    Sketcher.Constraint("Equal", 14, 16),
    Sketcher.Constraint("Equal", 16, 18),
    Sketcher.Constraint("Equal", 18, 20),
    Sketcher.Constraint("Equal", 12, 21),
    Sketcher.Constraint("Equal", 21, 22),
    Sketcher.Constraint("Equal", 22, 23),
    Sketcher.Constraint("Equal", 23, 24),
    Sketcher.Constraint("Equal", 24, 25),
    Sketcher.Constraint("Equal", 25, 26),
    Sketcher.Constraint("Equal", 26, 27),
    Sketcher.Constraint("Equal", 27, 28),
    Sketcher.Constraint("Equal", 20, 30),
    Sketcher.Constraint("Equal", 30, 32),
    Sketcher.Constraint("Equal", 32, 34),
    Sketcher.Constraint("Equal", 34, 36),
    Sketcher.Constraint("Equal", 28, 37),
    Sketcher.Constraint("Equal", 37, 38),
    Sketcher.Constraint("Equal", 38, 39),
    Sketcher.Constraint("Equal", 36, 41),
    Sketcher.Constraint("Equal", 41, 43),
    Sketcher.Constraint("Equal", 43, 45),
    Sketcher.Constraint("Equal", 45, 48),
    Sketcher.Constraint("Equal", 48, 52),
    Sketcher.Constraint("Equal", 52, 54),
    Sketcher.Constraint("Equal", 54, 56),
    Sketcher.Constraint("Equal", 39, 57),
    Sketcher.Constraint("Equal", 57, 58),
    Sketcher.Constraint("Symmetric", 42, 2, 43, 1, -2),
    Sketcher.Constraint("PointOnObject", 22, 3, -1),
    Sketcher.Constraint("PointOnObject", 53, 2, -1),
    Sketcher.Constraint("PointOnObject", 54, 1, -1),
    Sketcher.Constraint("Horizontal", 14, 3, 16, 3),
    Sketcher.Constraint("Horizontal", 7, 3, 24, 3),
    Sketcher.Constraint("Horizontal", 32, 3, 34, 3),
    Sketcher.Constraint("Horizontal", 41, 3, 43, 3),
    Sketcher.Constraint("Horizontal", 0, 2, 3, 1),
    Sketcher.Constraint("Horizontal", 26, 3, 14, 1),
    Sketcher.Constraint("Horizontal", 3, 1, 18, 1),
    Sketcher.Constraint("Horizontal", 7, 1, 29, 2),
    Sketcher.Constraint("Horizontal", 38, 3, 32, 1),
    Sketcher.Constraint("Horizontal", 45, 3, 40, 2),
    Sketcher.Constraint("Horizontal", 52, 3, 50, 2),
    Sketcher.Constraint("Horizontal", 51, 2, 52, 1),
    Sketcher.Constraint("Vertical", 12, 3, 14, 3),
    Sketcher.Constraint("Vertical", 3, 3, 16, 3),
    Sketcher.Constraint("Vertical", 21, 3, 22, 3),
    Sketcher.Constraint("Vertical", 24, 3, 27, 3),
    Sketcher.Constraint("Vertical", 25, 3, 34, 3),
    Sketcher.Constraint("Vertical", 10, 2, 13, 2),
    Sketcher.Constraint("Vertical", 2, 2, 16, 1),
    Sketcher.Constraint("Vertical", 32, 3, 30, 1),
    Sketcher.Constraint("Vertical", 45, 3, 33, 2),
    Sketcher.Constraint("Vertical", 9, 1, 34, 1),
    Sketcher.Constraint("Vertical", 20, 1, 40, 2),
    Sketcher.Constraint("Vertical", 46, 2, 49, 2),
    Sketcher.Constraint("Diameter", 12, 2.75),
    Sketcher.Constraint("DistanceX", 2, 1, 2, 2, 45.0),
    Sketcher.Constraint("DistanceX", 10, 2, 10, 1, 88.0),
    Sketcher.Constraint("DistanceY", 0, 1, 0, 2, 95.0),
    Sketcher.Constraint("DistanceY", 8, 2, 8, 1, 81.0),
    Sketcher.Constraint("DistanceX", 47, 2, 47, 1, 6.5),
    Sketcher.Constraint("DistanceX", 1, 3, -1, 1, 46.0),
    Sketcher.Constraint("DistanceY", -1, 1, 1, 3, 44.0),
    Sketcher.Constraint("DistanceY", -1, 1, 14, 3, 8.0),
    Sketcher.Constraint("DistanceX", -1, 1, 24, 3, 7.0),
    Sketcher.Constraint("DistanceY", -1, 1, 27, 3, 7.0),
    Sketcher.Constraint("DistanceY", 37, 3, -1, 1, 1.0),
    Sketcher.Constraint("Radius", 1, 3.375),
    Sketcher.Constraint("DistanceY", 46, 1, 46, 2, 5.75),
    Sketcher.Constraint("DistanceX", -1, 1, 37, 3, 28.5),
    Sketcher.Constraint("DistanceX", 6, 1, 6, 2, 32.78823),
])
pad15 = doc.addObject("PartDesign::Pad", "Pad014")
body.addObject(pad15)
pad15.Profile = sketch15
pad15.Length = 4
pad15.Reversed = True
doc.recompute()

fillet = doc.addObject("PartDesign::Fillet", "Fillet")
body.addObject(fillet)
fillet.Base = (pad15, edges_at(pad15, [
    (-42.625, 2, 8),
    (-4.375, 2, 8),
    (-1, 2, 11.375),
    (-1, 2, 40.625),
    (-4.375, 2, 44),
    (-42.625, 2, 44),
    (-46, 2, 40.625),
    (-46, 2, 11.375),
    (42, 2, -35.125),
    (42, 2, -1),
    (31.875, 2, -1),
    (25.125, 2, -1),
    (3.375, 2, 0),
    (-3.375, 2, 0),
    (-42.625, 2, 0),
    (-46, 2, -3.375),
    (-46, 2, -47.625),
    (-42.625, 2, -51),
    (-3.375, 2, -51),
    (3.375, 2, -51),
    (42, 2, -41.875),
    (7, 2, 26.625),
    (7, 2, 10.375),
    (10.375, 2, 7),
    (38.625, 2, 7),
    (42, 2, 10.375),
    (42, 2, 26.625),
    (38.625, 2, 30),
    (10.375, 2, 30),
]))
fillet.Radius = 2

doc.recompute()
